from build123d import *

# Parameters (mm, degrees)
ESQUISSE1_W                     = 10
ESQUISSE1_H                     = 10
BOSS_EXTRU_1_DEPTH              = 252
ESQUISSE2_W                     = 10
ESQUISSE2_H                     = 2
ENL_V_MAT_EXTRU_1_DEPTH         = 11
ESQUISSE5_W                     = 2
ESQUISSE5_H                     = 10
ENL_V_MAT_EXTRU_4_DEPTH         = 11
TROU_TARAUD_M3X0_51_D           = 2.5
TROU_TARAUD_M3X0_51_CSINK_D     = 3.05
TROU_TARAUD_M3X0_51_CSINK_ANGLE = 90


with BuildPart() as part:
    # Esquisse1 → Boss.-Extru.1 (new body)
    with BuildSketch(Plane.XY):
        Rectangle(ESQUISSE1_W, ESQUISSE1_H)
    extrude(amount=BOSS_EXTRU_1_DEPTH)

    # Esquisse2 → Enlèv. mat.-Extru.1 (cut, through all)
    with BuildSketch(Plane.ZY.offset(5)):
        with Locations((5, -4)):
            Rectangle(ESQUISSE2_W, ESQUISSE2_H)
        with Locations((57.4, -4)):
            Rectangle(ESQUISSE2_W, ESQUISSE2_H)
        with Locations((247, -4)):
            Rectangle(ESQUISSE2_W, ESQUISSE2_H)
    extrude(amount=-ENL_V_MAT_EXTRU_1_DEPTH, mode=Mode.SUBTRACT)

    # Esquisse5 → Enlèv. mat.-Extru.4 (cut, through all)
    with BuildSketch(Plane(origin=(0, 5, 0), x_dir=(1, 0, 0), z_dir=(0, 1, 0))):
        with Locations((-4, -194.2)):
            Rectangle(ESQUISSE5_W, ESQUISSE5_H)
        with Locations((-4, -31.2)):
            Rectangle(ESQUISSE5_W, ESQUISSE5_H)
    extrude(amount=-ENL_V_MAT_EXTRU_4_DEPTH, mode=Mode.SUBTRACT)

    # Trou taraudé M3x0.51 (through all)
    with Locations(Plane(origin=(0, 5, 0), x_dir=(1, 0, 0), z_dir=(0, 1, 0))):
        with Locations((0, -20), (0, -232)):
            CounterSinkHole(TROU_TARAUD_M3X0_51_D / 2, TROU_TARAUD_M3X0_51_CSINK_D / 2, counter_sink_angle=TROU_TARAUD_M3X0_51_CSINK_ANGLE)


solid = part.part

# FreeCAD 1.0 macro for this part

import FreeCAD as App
import Part
import Sketcher

V = App.Vector
Q = App.Units.Quantity


def add_polygon(sketch, points):
    """Adds a closed chain of lines whose ends are joined by coincident constraints."""
    first, n = sketch.GeometryCount, len(points)
    for a, b in zip(points, points[1:] + points[:1]):
        sketch.addGeometry(Part.LineSegment(App.Vector(*a, 0), App.Vector(*b, 0)), False)
    for i in range(n):
        sketch.addConstraint(Sketcher.Constraint("Coincident", first + i, 2, first + (i + 1) % n, 1))

doc = App.newDocument("Part")
body = doc.addObject("PartDesign::Body", "Body")

sketch1 = doc.addObject("Sketcher::SketchObject", "Sketch")
body.addObject(sketch1)
sketch1.AttachmentSupport = (doc.XY_Plane, [""])
sketch1.MapMode = "FlatFace"
add_polygon(sketch1, [(-5, 5), (-5, -5), (5, -5), (5, 5)])
sketch1.addConstraint(Sketcher.Constraint("Vertical", 0))
sketch1.addConstraint(Sketcher.Constraint("Horizontal", 1))
sketch1.addConstraint(Sketcher.Constraint("Vertical", 2))
sketch1.addConstraint(Sketcher.Constraint("Horizontal", 3))
sketch1.addConstraint(Sketcher.Constraint("Symmetric", 0, 2, 2, 2, -1, 1))
sketch1.addConstraint(Sketcher.Constraint("Equal", 3, 0))
sketch1.addConstraint(Sketcher.Constraint("DistanceX", 1, 1, 1, 2, Q("10 mm")))
pad1 = doc.addObject("PartDesign::Pad", "Pad")
body.addObject(pad1)
pad1.Profile = sketch1
pad1.Length = 252

sketch2 = doc.addObject("Sketcher::SketchObject", "Sketch001")
body.addObject(sketch2)
sketch2.AttachmentSupport = (doc.YZ_Plane, [""])
sketch2.MapMode = "FlatFace"
sketch2.AttachmentOffset = App.Placement(V(0, 0, -5), App.Rotation())
add_polygon(sketch2, [(-3, 0), (-5, 0), (-5, 10), (-3, 10)])
add_polygon(sketch2, [(-3, 52.4), (-5, 52.4), (-5, 62.4), (-3, 62.4)])
add_polygon(sketch2, [(-3, 242), (-5, 242), (-5, 252), (-3, 252)])
sketch2.addConstraint(Sketcher.Constraint("Horizontal", 0))
sketch2.addConstraint(Sketcher.Constraint("Vertical", 1))
sketch2.addConstraint(Sketcher.Constraint("Horizontal", 2))
sketch2.addConstraint(Sketcher.Constraint("Vertical", 3))
sketch2.addConstraint(Sketcher.Constraint("Horizontal", 4))
sketch2.addConstraint(Sketcher.Constraint("Vertical", 5))
sketch2.addConstraint(Sketcher.Constraint("Horizontal", 6))
sketch2.addConstraint(Sketcher.Constraint("Vertical", 7))
sketch2.addConstraint(Sketcher.Constraint("Horizontal", 8))
sketch2.addConstraint(Sketcher.Constraint("Vertical", 9))
sketch2.addConstraint(Sketcher.Constraint("Horizontal", 10))
sketch2.addConstraint(Sketcher.Constraint("Vertical", 11))
sketch2.addConstraint(Sketcher.Constraint("PointOnObject", 0, 2, -1))
sketch2.addConstraint(Sketcher.Constraint("Vertical", 1, 2, 4, 2))
sketch2.addConstraint(Sketcher.Constraint("Vertical", 3, 2, 6, 2))
sketch2.addConstraint(Sketcher.Constraint("Vertical", 5, 2, 8, 2))
sketch2.addConstraint(Sketcher.Constraint("Vertical", 7, 2, 10, 2))
sketch2.addConstraint(Sketcher.Constraint("Equal", 3, 5))
sketch2.addConstraint(Sketcher.Constraint("Equal", 7, 9))
sketch2.addConstraint(Sketcher.Constraint("DistanceX", 0, 2, 0, 1, Q("2 mm")))
sketch2.addConstraint(Sketcher.Constraint("DistanceY", 1, 1, 1, 2, Q("10 mm")))
sketch2.addConstraint(Sketcher.Constraint("DistanceX", 0, 2, -1, 1, Q("5 mm")))
sketch2.addConstraint(Sketcher.Constraint("DistanceY", -1, 1, 8, 2, Q("242 mm")))
sketch2.addConstraint(Sketcher.Constraint("DistanceY", -1, 1, 4, 2, Q("52.4 mm")))
pocket1 = doc.addObject("PartDesign::Pocket", "Pocket")
body.addObject(pocket1)
pocket1.Profile = sketch2
pocket1.Type = "ThroughAll"
pocket1.Reversed = True

sketch3 = doc.addObject("Sketcher::SketchObject", "Sketch002")
body.addObject(sketch3)
sketch3.AttachmentSupport = (doc.XZ_Plane, [""])
sketch3.MapMode = "FlatFace"
sketch3.AttachmentOffset = App.Placement(V(0, 0, -5), App.Rotation())
add_polygon(sketch3, [(-5, 189.2), (-5, 199.2), (-3, 199.2), (-3, 189.2)])
add_polygon(sketch3, [(-5, 26.2), (-5, 36.2), (-3, 36.2), (-3, 26.2)])
sketch3.addConstraint(Sketcher.Constraint("Vertical", 0))
sketch3.addConstraint(Sketcher.Constraint("Horizontal", 1))
sketch3.addConstraint(Sketcher.Constraint("Vertical", 2))
sketch3.addConstraint(Sketcher.Constraint("Horizontal", 3))
sketch3.addConstraint(Sketcher.Constraint("Vertical", 4))
sketch3.addConstraint(Sketcher.Constraint("Horizontal", 5))
sketch3.addConstraint(Sketcher.Constraint("Vertical", 6))
sketch3.addConstraint(Sketcher.Constraint("Horizontal", 7))
sketch3.addConstraint(Sketcher.Constraint("Vertical", 3, 2, 4, 2))
sketch3.addConstraint(Sketcher.Constraint("Vertical", 2, 2, 5, 2))
sketch3.addConstraint(Sketcher.Constraint("Equal", 2, 4))
sketch3.addConstraint(Sketcher.Constraint("DistanceX", 1, 1, 1, 2, Q("2 mm")))
sketch3.addConstraint(Sketcher.Constraint("DistanceY", 0, 1, 0, 2, Q("10 mm")))
sketch3.addConstraint(Sketcher.Constraint("DistanceX", 0, 2, -1, 1, Q("5 mm")))
sketch3.addConstraint(Sketcher.Constraint("DistanceY", 4, 2, 3, 2, Q("153 mm")))
sketch3.addConstraint(Sketcher.Constraint("DistanceY", -1, 1, 0, 2, Q("199.2 mm")))
pocket2 = doc.addObject("PartDesign::Pocket", "Pocket001")
body.addObject(pocket2)
pocket2.Profile = sketch3
pocket2.Type = "ThroughAll"
pocket2.Reversed = True

sketch4 = doc.addObject("Sketcher::SketchObject", "Sketch003")
body.addObject(sketch4)
sketch4.AttachmentSupport = (doc.XZ_Plane, [""])
sketch4.MapMode = "FlatFace"
sketch4.AttachmentOffset = App.Placement(V(0, 0, -5), App.Rotation())
sketch4.addGeometry(Part.Circle(V(0, 20, 0), V(0, 0, 1), 1.2), False)
sketch4.addGeometry(Part.Circle(V(0, 232, 0), V(0, 0, 1), 1.2), False)
sketch4.addConstraint(Sketcher.Constraint("Equal", 0, 1))
sketch4.addConstraint(Sketcher.Constraint("PointOnObject", 0, 3, -2))
sketch4.addConstraint(Sketcher.Constraint("PointOnObject", 1, 3, -2))
sketch4.addConstraint(Sketcher.Constraint("Diameter", 0, Q("2.5 mm")))
sketch4.addConstraint(Sketcher.Constraint("DistanceY", -1, 1, 0, 3, Q("20 mm")))
sketch4.addConstraint(Sketcher.Constraint("DistanceY", -1, 1, 1, 3, Q("232 mm")))
doc.recompute()
hole = doc.addObject("PartDesign::Hole", "Hole")
body.addObject(hole)
hole.Profile = sketch4
hole.ThreadType = "None"
hole.Diameter = 2.5
hole.DepthType = "ThroughAll"
hole.HoleCutType = "Countersink"
hole.HoleCutDiameter = 3.05
hole.HoleCutCountersinkAngle = 90
hole.Reversed = True

doc.recompute()
